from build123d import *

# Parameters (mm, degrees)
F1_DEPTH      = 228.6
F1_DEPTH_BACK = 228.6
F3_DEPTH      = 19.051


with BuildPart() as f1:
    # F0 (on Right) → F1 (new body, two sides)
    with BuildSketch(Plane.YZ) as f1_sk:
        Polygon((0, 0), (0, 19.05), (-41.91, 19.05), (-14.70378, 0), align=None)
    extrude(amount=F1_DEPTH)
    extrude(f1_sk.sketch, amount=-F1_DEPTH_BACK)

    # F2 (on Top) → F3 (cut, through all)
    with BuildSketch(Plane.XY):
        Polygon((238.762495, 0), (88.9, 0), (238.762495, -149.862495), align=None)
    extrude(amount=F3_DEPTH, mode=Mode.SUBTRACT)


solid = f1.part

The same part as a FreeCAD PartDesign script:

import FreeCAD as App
import Part
import Sketcher
from FreeCAD import Vector
Q = App.Units.Quantity


def add_polygon(sketch, points):
    """Adds a closed chain of lines whose ends are joined by coincident constraints."""
    first, n = sketch.GeometryCount, len(points)
    for a, b in zip(points, points[1:] + points[:1]):
        sketch.addGeometry(Part.LineSegment(App.Vector(*a, 0), App.Vector(*b, 0)), False)
    for i in range(n):
        sketch.addConstraint(Sketcher.Constraint("Coincident", first + i, 2, first + (i + 1) % n, 1))

doc = App.newDocument("Part")
params = doc.addObject("Spreadsheet::Sheet", "Params")
for row, (alias, value) in enumerate([
    ("sketch1_width", "1.65 in"),
    ("sketch1_height", "0.75 in"),
    ("pad1_length", "9 in"),
    ("pad1_length2", "9 in"),
], start=1):
    params.set(f"A{row}", alias)
    params.set(f"B{row}", "=" + value)
    params.setAlias(f"B{row}", alias)

body = doc.addObject("PartDesign::Body", "Body")

# Sketch on YZ plane
sketch1 = body.newObject("Sketcher::SketchObject", "Sketch")
sketch1.AttachmentSupport = (doc.getObject("YZ_Plane"), [""])
sketch1.MapMode = "FlatFace"
add_polygon(sketch1, [(0, 0), (0, 19.05), (-41.91, 19.05), (-14.70378, 0)])  # lines 0-3
sketch1.addConstraint([
    Sketcher.Constraint("Vertical", 0),
    Sketcher.Constraint("Horizontal", 1),
    Sketcher.Constraint("Horizontal", 3),
    Sketcher.Constraint("Coincident", 3, 2, -1, 1),
    Sketcher.Constraint("Angle", 2, Q("-35 deg")),
    Sketcher.Constraint("DistanceX", 1, 2, 1, 1, Q("1.65 in")),
    Sketcher.Constraint("DistanceY", 0, 1, 0, 2, Q("0.75 in")),
])
sketch1.setExpression("Constraints[9]", "Params.sketch1_width")
sketch1.setExpression("Constraints[10]", "Params.sketch1_height")
pad1 = body.newObject("PartDesign::Pad", "Pad")
pad1.Profile = sketch1
pad1.Type = "TwoLengths"
pad1.setExpression("Length", "Params.pad1_length")
pad1.setExpression("Length2", "Params.pad1_length2")

# Sketch on XY plane
sketch2 = body.newObject("Sketcher::SketchObject", "Sketch001")
sketch2.AttachmentSupport = (doc.getObject("XY_Plane"), [""])
sketch2.MapMode = "FlatFace"
add_polygon(sketch2, [(238.762495, 0), (88.9, 0), (238.762495, -149.862495)])  # lines 0-2
sketch2.addConstraint([
    Sketcher.Constraint("Horizontal", 0),
    Sketcher.Constraint("Vertical", 2),
    Sketcher.Constraint("PointOnObject", 0, 2, -1),
    Sketcher.Constraint("Equal", 0, 2),
    Sketcher.Constraint("DistanceX", -1, 1, 0, 2, Q("3.5 in")),
    Sketcher.Constraint("DistanceX", 0, 2, 0, 1, Q("149.862495 mm")),
])
pocket1 = body.newObject("PartDesign::Pocket", "Pocket")
pocket1.Profile = sketch2
pocket1.Type = "ThroughAll"
pocket1.Reversed = True

doc.recompute()
